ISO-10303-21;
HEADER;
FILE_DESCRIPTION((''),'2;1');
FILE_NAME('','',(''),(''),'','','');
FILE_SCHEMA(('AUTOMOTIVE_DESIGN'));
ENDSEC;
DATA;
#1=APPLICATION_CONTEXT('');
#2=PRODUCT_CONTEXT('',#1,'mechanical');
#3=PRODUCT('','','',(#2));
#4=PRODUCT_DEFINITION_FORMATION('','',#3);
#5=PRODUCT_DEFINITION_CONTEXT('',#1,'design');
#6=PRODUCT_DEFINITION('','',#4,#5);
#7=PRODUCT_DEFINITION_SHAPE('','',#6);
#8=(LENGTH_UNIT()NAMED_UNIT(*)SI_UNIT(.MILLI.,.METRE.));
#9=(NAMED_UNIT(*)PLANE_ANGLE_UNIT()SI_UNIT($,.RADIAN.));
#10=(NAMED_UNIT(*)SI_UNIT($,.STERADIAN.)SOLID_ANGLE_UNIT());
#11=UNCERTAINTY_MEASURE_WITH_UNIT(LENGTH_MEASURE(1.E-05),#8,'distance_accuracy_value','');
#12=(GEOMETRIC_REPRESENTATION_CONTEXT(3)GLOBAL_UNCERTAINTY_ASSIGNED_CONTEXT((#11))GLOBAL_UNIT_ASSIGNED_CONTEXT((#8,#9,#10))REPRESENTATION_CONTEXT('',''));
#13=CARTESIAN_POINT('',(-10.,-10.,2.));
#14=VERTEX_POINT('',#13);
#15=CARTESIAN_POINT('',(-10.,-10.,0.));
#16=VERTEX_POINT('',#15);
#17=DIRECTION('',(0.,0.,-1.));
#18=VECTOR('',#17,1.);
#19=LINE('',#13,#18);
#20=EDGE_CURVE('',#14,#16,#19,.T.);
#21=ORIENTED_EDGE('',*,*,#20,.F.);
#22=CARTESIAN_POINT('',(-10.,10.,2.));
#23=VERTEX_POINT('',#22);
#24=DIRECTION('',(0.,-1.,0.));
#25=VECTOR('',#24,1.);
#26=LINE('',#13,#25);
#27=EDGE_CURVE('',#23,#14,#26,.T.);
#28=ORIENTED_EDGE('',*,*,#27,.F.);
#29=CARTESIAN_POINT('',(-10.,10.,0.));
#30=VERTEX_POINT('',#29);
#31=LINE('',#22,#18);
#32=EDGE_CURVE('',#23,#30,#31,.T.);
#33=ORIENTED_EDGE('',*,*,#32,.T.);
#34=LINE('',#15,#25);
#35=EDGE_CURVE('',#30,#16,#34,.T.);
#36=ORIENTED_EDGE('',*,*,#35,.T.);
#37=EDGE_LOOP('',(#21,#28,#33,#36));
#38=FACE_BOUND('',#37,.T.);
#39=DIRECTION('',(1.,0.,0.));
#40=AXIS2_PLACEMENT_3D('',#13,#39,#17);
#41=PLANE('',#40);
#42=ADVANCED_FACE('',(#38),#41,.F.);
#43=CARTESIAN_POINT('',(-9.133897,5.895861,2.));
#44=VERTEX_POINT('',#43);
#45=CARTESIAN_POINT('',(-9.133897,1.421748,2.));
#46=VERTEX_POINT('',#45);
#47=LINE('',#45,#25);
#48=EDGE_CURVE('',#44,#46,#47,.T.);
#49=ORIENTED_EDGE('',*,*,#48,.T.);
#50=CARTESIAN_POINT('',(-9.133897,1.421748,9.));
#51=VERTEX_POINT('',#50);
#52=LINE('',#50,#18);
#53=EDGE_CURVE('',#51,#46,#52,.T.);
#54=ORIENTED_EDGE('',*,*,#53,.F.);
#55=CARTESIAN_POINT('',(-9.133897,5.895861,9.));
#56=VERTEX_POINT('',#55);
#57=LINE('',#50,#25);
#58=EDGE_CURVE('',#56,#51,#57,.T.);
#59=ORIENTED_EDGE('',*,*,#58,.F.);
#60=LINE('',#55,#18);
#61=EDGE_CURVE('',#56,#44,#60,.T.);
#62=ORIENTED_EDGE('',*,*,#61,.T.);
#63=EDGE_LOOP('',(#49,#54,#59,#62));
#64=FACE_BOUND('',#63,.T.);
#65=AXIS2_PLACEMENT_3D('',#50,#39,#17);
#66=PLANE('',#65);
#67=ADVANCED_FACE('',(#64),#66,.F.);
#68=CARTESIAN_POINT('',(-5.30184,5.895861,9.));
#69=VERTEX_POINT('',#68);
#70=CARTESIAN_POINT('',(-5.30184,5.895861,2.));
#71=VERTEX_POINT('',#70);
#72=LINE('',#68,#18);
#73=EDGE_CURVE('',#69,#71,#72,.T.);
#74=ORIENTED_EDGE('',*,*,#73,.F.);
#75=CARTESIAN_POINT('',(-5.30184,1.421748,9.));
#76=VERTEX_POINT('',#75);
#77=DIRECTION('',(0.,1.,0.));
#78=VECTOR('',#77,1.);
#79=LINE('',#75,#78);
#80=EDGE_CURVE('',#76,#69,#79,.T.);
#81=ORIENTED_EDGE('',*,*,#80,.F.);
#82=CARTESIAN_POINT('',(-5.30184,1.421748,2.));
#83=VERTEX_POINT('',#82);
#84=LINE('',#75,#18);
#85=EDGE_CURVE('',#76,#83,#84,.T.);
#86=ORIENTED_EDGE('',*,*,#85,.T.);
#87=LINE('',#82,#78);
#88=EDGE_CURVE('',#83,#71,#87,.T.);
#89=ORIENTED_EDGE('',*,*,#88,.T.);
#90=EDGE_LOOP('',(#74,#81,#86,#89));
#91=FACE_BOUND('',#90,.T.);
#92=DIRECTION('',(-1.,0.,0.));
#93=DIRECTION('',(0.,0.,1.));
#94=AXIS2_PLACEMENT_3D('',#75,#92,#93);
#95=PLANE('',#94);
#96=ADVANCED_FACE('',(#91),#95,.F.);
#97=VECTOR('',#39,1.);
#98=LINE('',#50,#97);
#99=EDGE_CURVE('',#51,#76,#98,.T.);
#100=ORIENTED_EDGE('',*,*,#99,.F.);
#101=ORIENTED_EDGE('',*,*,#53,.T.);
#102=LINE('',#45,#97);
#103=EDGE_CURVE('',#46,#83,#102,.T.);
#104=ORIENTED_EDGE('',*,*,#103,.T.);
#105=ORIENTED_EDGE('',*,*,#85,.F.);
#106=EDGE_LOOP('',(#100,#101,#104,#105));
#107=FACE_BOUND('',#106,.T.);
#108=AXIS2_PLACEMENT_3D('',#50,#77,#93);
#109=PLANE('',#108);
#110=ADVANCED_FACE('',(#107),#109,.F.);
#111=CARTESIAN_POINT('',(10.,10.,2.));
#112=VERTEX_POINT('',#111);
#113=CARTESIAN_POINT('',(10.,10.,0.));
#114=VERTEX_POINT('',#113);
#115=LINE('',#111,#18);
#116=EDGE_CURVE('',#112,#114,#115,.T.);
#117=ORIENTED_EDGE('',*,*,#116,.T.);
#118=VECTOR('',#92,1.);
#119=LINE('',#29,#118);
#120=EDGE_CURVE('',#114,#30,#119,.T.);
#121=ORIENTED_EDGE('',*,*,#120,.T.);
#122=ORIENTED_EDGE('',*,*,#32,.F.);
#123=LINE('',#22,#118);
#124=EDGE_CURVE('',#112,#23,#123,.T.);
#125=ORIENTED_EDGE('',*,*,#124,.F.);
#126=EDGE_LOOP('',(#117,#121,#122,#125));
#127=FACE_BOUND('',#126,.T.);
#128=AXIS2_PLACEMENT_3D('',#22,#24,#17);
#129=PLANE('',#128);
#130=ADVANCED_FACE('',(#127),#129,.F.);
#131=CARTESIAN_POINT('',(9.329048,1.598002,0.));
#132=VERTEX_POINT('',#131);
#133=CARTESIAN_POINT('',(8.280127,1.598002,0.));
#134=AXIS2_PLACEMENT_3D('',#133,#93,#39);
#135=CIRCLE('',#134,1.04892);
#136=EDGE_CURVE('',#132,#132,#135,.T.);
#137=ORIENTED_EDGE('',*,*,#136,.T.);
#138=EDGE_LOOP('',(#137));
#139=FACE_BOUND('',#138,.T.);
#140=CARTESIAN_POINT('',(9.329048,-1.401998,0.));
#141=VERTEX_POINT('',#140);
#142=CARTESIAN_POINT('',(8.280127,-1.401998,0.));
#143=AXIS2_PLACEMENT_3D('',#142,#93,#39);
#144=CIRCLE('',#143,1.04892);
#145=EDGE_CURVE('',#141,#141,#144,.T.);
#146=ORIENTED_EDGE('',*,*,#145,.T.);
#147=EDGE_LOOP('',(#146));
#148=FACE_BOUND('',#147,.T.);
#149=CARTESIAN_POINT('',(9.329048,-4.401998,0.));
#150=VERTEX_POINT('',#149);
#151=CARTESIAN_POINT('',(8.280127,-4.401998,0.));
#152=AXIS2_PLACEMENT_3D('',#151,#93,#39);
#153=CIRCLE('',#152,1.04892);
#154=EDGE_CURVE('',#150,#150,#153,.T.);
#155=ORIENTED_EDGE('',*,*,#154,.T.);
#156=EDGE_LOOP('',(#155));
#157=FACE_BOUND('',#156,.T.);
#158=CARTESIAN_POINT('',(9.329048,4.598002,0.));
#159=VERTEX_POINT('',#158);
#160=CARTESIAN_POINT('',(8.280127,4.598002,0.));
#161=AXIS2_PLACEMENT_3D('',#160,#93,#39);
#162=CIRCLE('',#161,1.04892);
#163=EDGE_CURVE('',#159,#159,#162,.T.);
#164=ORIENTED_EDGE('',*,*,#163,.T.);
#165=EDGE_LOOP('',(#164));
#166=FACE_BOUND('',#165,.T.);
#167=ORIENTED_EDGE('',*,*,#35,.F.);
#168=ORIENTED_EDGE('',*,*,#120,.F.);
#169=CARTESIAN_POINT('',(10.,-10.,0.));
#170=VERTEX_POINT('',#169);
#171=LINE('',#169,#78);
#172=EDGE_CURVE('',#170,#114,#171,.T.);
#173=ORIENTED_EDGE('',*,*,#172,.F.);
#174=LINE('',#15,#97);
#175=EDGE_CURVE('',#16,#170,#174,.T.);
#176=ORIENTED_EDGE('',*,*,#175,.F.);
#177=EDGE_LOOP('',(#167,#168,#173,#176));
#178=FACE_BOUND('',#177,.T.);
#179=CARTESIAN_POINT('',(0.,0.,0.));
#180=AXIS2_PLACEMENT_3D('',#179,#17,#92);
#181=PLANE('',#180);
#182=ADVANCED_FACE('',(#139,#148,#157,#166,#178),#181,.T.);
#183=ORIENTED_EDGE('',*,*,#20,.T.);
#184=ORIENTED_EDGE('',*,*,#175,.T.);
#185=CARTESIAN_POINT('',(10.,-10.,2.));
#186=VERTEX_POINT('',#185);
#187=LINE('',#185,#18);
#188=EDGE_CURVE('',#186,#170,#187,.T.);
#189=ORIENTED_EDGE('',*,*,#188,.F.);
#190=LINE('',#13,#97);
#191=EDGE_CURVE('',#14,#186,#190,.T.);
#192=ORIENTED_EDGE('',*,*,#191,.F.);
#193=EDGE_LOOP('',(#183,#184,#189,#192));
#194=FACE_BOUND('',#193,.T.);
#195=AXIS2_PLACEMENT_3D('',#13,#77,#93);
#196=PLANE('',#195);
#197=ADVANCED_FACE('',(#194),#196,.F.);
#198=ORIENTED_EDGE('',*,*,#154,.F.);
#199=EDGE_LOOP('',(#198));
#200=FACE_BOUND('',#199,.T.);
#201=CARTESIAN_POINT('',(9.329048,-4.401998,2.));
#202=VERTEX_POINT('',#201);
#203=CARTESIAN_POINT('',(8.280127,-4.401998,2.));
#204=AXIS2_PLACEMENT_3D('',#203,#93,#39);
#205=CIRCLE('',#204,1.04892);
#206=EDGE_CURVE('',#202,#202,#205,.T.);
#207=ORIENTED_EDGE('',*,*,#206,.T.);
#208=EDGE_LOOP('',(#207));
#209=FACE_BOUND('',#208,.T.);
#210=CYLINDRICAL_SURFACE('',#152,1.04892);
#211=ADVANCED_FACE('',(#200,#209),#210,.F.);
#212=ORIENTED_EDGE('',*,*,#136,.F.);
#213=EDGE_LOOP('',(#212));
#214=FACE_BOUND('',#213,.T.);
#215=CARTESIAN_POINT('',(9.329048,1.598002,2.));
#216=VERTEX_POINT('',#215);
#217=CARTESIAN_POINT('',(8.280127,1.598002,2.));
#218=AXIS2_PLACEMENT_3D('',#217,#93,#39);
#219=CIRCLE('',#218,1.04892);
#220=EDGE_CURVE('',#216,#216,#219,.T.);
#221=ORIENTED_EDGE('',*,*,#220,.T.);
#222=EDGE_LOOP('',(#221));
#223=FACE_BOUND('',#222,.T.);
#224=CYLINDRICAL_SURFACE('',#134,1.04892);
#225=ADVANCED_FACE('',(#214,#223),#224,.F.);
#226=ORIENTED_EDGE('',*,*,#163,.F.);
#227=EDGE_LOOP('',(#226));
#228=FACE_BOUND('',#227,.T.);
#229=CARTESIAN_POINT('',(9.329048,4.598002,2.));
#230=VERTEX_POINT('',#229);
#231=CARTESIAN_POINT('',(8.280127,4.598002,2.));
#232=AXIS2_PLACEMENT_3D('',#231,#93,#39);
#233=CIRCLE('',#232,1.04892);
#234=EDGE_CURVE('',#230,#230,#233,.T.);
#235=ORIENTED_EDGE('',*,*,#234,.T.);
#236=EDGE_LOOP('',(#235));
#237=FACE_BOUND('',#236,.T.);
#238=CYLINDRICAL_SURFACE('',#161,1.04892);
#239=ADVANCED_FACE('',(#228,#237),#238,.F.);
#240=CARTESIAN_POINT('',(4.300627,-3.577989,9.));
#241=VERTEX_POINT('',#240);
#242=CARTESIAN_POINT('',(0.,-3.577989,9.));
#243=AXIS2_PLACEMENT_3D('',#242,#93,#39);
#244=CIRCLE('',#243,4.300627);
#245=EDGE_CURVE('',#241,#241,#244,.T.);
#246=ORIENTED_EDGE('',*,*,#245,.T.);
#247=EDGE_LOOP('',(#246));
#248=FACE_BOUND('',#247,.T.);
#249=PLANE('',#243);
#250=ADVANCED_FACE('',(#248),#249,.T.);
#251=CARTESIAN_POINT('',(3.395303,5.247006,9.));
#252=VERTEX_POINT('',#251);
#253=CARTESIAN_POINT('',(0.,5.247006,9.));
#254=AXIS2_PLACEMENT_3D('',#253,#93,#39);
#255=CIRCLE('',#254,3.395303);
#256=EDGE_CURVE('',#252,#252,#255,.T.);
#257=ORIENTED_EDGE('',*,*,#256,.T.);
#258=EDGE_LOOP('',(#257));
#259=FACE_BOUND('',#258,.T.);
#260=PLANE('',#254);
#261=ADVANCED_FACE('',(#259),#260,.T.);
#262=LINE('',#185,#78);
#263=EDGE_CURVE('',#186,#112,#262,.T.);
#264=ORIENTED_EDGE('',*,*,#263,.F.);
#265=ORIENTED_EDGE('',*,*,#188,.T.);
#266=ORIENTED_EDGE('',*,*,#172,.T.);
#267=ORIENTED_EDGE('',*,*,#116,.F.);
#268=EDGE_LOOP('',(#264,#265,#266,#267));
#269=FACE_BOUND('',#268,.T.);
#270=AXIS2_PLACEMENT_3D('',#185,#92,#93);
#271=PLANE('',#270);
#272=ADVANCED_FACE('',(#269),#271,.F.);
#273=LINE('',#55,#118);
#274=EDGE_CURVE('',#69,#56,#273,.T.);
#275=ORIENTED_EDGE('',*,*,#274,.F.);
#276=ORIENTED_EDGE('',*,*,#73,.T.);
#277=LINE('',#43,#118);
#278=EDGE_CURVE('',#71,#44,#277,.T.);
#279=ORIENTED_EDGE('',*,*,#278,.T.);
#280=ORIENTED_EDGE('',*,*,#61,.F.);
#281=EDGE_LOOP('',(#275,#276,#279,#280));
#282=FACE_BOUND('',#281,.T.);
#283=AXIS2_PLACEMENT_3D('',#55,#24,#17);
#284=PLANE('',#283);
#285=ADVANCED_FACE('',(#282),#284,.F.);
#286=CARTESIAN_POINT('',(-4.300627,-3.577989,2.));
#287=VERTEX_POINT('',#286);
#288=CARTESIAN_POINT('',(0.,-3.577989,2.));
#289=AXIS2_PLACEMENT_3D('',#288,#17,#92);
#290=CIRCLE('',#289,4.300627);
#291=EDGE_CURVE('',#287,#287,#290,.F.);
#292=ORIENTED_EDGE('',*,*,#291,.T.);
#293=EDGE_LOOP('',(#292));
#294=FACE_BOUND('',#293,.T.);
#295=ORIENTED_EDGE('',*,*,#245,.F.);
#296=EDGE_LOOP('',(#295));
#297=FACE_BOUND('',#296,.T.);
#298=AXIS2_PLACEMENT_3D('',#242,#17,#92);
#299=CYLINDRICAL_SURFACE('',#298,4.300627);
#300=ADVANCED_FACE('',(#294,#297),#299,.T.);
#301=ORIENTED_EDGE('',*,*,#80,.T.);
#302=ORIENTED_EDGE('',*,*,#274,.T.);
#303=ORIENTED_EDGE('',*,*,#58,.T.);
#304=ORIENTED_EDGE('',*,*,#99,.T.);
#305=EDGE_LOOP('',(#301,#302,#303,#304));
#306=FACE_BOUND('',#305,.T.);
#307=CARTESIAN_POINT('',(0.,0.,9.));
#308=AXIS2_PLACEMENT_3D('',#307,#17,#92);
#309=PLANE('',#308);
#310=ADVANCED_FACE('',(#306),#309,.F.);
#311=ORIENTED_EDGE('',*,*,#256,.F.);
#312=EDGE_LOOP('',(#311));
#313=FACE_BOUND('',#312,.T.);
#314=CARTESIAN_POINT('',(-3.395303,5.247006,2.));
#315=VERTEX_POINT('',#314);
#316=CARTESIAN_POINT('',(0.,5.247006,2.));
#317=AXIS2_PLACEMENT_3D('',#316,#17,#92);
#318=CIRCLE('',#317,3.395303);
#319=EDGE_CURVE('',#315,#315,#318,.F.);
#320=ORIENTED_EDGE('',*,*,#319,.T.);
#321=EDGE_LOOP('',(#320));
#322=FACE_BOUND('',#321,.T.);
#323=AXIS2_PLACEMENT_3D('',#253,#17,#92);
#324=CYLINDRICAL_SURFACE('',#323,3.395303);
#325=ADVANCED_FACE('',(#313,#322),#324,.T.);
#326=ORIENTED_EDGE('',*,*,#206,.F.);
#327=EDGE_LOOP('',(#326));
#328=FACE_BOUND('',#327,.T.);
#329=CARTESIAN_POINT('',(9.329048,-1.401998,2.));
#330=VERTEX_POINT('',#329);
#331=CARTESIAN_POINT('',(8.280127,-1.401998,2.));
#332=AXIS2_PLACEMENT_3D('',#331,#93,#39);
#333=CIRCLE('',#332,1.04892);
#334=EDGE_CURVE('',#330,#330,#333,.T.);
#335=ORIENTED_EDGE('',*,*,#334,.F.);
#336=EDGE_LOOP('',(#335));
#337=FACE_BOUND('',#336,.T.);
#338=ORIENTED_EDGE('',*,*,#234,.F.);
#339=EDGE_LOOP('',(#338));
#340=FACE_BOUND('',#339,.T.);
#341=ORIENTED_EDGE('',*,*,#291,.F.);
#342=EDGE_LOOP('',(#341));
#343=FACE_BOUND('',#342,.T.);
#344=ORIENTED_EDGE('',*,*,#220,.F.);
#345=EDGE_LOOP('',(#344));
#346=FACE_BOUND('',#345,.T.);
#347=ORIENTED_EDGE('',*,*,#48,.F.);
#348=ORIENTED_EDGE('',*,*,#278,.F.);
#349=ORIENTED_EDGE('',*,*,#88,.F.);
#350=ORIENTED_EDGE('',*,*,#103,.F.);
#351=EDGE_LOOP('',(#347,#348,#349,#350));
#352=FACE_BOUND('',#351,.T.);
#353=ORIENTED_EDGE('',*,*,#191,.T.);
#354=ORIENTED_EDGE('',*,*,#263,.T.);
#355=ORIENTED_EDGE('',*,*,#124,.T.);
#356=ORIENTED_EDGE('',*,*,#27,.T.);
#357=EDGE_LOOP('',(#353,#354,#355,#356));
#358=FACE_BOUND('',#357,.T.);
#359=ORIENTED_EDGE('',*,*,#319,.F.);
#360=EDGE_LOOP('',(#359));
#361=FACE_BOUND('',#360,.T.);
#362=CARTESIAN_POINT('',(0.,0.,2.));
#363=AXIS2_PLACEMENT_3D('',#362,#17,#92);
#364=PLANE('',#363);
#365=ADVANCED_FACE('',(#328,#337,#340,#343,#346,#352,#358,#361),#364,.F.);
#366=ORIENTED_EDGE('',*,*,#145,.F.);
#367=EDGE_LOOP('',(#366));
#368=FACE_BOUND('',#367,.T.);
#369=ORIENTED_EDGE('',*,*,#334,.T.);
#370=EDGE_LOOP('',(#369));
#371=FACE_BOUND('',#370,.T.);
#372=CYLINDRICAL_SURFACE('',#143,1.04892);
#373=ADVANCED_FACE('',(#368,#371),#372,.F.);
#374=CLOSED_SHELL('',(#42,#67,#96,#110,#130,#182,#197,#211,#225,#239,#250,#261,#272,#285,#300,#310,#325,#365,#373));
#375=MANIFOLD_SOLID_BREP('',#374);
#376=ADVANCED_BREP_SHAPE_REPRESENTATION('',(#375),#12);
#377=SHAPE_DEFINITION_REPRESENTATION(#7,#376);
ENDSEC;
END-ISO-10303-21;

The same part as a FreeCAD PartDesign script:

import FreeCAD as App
import Part
import Sketcher


def add_polygon(sketch, points):
    """Adds a closed chain of lines whose ends are joined by coincident constraints."""
    first, n = sketch.GeometryCount, len(points)
    for a, b in zip(points, points[1:] + points[:1]):
        sketch.addGeometry(Part.LineSegment(App.Vector(*a, 0), App.Vector(*b, 0)), False)
    for i in range(n):
        sketch.addConstraint(Sketcher.Constraint("Coincident", first + i, 2, first + (i + 1) % n, 1))

doc = App.newDocument("Part")
params = doc.addObject("Spreadsheet::Sheet", "Params")
for row, (alias, value) in enumerate([
    ("sketch1_width", "20 mm"),
    ("pad1_length", "2 mm"),
    ("pad2_length", "7 mm"),
    ("pocket1_length", "2 mm"),
], start=1):
    params.set(f"A{row}", alias)
    params.set(f"B{row}", "=" + value)
    params.setAlias(f"B{row}", alias)

body = doc.addObject("PartDesign::Body", "Body")

sketch1 = body.newObject("Sketcher::SketchObject", "Sketch")
sketch1.AttachmentSupport = (doc.getObject("XY_Plane"), [""])
sketch1.MapMode = "FlatFace"
add_polygon(sketch1, [(-10, 10), (-10, -10), (10, -10), (10, 10)])
sketch1.addConstraint(Sketcher.Constraint("Vertical", 0))
sketch1.addConstraint(Sketcher.Constraint("Horizontal", 1))
sketch1.addConstraint(Sketcher.Constraint("Vertical", 2))
sketch1.addConstraint(Sketcher.Constraint("Horizontal", 3))
sketch1.addConstraint(Sketcher.Constraint("Symmetric", 0, 2, 2, 2, -1, 1))
sketch1.addConstraint(Sketcher.Constraint("Equal", 3, 0))
sketch1.addConstraint(Sketcher.Constraint("DistanceX", 1, 1, 1, 2, 20.0))
sketch1.setExpression("Constraints[10]", "Params.sketch1_width")
pad1 = body.newObject("PartDesign::Pad", "Pad")
pad1.Profile = sketch1
pad1.setExpression("Length", "Params.pad1_length")

sketch2 = body.newObject("Sketcher::SketchObject", "Sketch001")
sketch2.AttachmentSupport = (doc.getObject("XY_Plane"), [""])
sketch2.MapMode = "FlatFace"
sketch2.AttachmentOffset = App.Placement(App.Vector(0, 0, 2), App.Rotation())
sketch2.addGeometry(Part.Circle(App.Vector(0, 5.2, 0), App.Vector(0, 0, 1), 3.4), False)
sketch2.addGeometry(Part.Circle(App.Vector(0, -3.6, 0), App.Vector(0, 0, 1), 4.3), False)
add_polygon(sketch2, [(-9.1, 5.9), (-9.1, 1.4), (-5.3, 1.4), (-5.3, 5.9)])
sketch2.addConstraint(Sketcher.Constraint("Vertical", 2))
sketch2.addConstraint(Sketcher.Constraint("Horizontal", 3))
sketch2.addConstraint(Sketcher.Constraint("Vertical", 4))
sketch2.addConstraint(Sketcher.Constraint("Horizontal", 5))
sketch2.addConstraint(Sketcher.Constraint("PointOnObject", 0, 3, -2))
sketch2.addConstraint(Sketcher.Constraint("PointOnObject", 1, 3, -2))
sketch2.addConstraint(Sketcher.Constraint("Diameter", 0, 6.790606))
sketch2.addConstraint(Sketcher.Constraint("Diameter", 1, 8.601254))
sketch2.addConstraint(Sketcher.Constraint("DistanceX", 3, 1, 3, 2, 3.832057))
sketch2.addConstraint(Sketcher.Constraint("DistanceY", 2, 2, 2, 1, 4.474113))
sketch2.addConstraint(Sketcher.Constraint("DistanceY", 1, 3, -1, 1, 3.577989))
sketch2.addConstraint(Sketcher.Constraint("DistanceX", 3, 2, -1, 1, 5.30184))
sketch2.addConstraint(Sketcher.Constraint("DistanceY", -1, 1, 4, 2, 5.895861))
sketch2.addConstraint(Sketcher.Constraint("DistanceY", -1, 1, 0, 3, 5.247006))
pad2 = body.newObject("PartDesign::Pad", "Pad001")
pad2.Profile = sketch2
pad2.setExpression("Length", "Params.pad2_length")

sketch3 = body.newObject("Sketcher::SketchObject", "Sketch002")
sketch3.AttachmentSupport = (doc.getObject("XY_Plane"), [""])
sketch3.MapMode = "FlatFace"
sketch3.AttachmentOffset = App.Placement(App.Vector(0, 0, 2), App.Rotation())
sketch3.addGeometry(Part.Circle(App.Vector(8.3, 4.6, 0), App.Vector(0, 0, 1), 1), False)
sketch3.addGeometry(Part.Circle(App.Vector(8.3, 1.6, 0), App.Vector(0, 0, 1), 1), False)
sketch3.addGeometry(Part.Circle(App.Vector(8.3, -1.4, 0), App.Vector(0, 0, 1), 1), False)
sketch3.addGeometry(Part.Circle(App.Vector(8.3, -4.4, 0), App.Vector(0, 0, 1), 1), False)
sketch3.addConstraint(Sketcher.Constraint("Equal", 0, 1))
sketch3.addConstraint(Sketcher.Constraint("Equal", 1, 2))
sketch3.addConstraint(Sketcher.Constraint("Equal", 2, 3))
sketch3.addConstraint(Sketcher.Constraint("Vertical", 0, 3, 1, 3))
sketch3.addConstraint(Sketcher.Constraint("Vertical", 1, 3, 2, 3))
sketch3.addConstraint(Sketcher.Constraint("Vertical", 2, 3, 3, 3))
sketch3.addConstraint(Sketcher.Constraint("DistanceY", 1, 3, 0, 3, 3.0))
sketch3.addConstraint(Sketcher.Constraint("DistanceY", 2, 3, 1, 3, 3.0))
sketch3.addConstraint(Sketcher.Constraint("DistanceY", 3, 3, 2, 3, 3.0))
sketch3.addConstraint(Sketcher.Constraint("Diameter", 0, 2.09784))
sketch3.addConstraint(Sketcher.Constraint("DistanceX", -1, 1, 0, 3, 8.280127))
sketch3.addConstraint(Sketcher.Constraint("DistanceY", -1, 1, 0, 3, 4.598002))
pocket1 = body.newObject("PartDesign::Pocket", "Pocket")
pocket1.Profile = sketch3
pocket1.setExpression("Length", "Params.pocket1_length")

doc.recompute()
